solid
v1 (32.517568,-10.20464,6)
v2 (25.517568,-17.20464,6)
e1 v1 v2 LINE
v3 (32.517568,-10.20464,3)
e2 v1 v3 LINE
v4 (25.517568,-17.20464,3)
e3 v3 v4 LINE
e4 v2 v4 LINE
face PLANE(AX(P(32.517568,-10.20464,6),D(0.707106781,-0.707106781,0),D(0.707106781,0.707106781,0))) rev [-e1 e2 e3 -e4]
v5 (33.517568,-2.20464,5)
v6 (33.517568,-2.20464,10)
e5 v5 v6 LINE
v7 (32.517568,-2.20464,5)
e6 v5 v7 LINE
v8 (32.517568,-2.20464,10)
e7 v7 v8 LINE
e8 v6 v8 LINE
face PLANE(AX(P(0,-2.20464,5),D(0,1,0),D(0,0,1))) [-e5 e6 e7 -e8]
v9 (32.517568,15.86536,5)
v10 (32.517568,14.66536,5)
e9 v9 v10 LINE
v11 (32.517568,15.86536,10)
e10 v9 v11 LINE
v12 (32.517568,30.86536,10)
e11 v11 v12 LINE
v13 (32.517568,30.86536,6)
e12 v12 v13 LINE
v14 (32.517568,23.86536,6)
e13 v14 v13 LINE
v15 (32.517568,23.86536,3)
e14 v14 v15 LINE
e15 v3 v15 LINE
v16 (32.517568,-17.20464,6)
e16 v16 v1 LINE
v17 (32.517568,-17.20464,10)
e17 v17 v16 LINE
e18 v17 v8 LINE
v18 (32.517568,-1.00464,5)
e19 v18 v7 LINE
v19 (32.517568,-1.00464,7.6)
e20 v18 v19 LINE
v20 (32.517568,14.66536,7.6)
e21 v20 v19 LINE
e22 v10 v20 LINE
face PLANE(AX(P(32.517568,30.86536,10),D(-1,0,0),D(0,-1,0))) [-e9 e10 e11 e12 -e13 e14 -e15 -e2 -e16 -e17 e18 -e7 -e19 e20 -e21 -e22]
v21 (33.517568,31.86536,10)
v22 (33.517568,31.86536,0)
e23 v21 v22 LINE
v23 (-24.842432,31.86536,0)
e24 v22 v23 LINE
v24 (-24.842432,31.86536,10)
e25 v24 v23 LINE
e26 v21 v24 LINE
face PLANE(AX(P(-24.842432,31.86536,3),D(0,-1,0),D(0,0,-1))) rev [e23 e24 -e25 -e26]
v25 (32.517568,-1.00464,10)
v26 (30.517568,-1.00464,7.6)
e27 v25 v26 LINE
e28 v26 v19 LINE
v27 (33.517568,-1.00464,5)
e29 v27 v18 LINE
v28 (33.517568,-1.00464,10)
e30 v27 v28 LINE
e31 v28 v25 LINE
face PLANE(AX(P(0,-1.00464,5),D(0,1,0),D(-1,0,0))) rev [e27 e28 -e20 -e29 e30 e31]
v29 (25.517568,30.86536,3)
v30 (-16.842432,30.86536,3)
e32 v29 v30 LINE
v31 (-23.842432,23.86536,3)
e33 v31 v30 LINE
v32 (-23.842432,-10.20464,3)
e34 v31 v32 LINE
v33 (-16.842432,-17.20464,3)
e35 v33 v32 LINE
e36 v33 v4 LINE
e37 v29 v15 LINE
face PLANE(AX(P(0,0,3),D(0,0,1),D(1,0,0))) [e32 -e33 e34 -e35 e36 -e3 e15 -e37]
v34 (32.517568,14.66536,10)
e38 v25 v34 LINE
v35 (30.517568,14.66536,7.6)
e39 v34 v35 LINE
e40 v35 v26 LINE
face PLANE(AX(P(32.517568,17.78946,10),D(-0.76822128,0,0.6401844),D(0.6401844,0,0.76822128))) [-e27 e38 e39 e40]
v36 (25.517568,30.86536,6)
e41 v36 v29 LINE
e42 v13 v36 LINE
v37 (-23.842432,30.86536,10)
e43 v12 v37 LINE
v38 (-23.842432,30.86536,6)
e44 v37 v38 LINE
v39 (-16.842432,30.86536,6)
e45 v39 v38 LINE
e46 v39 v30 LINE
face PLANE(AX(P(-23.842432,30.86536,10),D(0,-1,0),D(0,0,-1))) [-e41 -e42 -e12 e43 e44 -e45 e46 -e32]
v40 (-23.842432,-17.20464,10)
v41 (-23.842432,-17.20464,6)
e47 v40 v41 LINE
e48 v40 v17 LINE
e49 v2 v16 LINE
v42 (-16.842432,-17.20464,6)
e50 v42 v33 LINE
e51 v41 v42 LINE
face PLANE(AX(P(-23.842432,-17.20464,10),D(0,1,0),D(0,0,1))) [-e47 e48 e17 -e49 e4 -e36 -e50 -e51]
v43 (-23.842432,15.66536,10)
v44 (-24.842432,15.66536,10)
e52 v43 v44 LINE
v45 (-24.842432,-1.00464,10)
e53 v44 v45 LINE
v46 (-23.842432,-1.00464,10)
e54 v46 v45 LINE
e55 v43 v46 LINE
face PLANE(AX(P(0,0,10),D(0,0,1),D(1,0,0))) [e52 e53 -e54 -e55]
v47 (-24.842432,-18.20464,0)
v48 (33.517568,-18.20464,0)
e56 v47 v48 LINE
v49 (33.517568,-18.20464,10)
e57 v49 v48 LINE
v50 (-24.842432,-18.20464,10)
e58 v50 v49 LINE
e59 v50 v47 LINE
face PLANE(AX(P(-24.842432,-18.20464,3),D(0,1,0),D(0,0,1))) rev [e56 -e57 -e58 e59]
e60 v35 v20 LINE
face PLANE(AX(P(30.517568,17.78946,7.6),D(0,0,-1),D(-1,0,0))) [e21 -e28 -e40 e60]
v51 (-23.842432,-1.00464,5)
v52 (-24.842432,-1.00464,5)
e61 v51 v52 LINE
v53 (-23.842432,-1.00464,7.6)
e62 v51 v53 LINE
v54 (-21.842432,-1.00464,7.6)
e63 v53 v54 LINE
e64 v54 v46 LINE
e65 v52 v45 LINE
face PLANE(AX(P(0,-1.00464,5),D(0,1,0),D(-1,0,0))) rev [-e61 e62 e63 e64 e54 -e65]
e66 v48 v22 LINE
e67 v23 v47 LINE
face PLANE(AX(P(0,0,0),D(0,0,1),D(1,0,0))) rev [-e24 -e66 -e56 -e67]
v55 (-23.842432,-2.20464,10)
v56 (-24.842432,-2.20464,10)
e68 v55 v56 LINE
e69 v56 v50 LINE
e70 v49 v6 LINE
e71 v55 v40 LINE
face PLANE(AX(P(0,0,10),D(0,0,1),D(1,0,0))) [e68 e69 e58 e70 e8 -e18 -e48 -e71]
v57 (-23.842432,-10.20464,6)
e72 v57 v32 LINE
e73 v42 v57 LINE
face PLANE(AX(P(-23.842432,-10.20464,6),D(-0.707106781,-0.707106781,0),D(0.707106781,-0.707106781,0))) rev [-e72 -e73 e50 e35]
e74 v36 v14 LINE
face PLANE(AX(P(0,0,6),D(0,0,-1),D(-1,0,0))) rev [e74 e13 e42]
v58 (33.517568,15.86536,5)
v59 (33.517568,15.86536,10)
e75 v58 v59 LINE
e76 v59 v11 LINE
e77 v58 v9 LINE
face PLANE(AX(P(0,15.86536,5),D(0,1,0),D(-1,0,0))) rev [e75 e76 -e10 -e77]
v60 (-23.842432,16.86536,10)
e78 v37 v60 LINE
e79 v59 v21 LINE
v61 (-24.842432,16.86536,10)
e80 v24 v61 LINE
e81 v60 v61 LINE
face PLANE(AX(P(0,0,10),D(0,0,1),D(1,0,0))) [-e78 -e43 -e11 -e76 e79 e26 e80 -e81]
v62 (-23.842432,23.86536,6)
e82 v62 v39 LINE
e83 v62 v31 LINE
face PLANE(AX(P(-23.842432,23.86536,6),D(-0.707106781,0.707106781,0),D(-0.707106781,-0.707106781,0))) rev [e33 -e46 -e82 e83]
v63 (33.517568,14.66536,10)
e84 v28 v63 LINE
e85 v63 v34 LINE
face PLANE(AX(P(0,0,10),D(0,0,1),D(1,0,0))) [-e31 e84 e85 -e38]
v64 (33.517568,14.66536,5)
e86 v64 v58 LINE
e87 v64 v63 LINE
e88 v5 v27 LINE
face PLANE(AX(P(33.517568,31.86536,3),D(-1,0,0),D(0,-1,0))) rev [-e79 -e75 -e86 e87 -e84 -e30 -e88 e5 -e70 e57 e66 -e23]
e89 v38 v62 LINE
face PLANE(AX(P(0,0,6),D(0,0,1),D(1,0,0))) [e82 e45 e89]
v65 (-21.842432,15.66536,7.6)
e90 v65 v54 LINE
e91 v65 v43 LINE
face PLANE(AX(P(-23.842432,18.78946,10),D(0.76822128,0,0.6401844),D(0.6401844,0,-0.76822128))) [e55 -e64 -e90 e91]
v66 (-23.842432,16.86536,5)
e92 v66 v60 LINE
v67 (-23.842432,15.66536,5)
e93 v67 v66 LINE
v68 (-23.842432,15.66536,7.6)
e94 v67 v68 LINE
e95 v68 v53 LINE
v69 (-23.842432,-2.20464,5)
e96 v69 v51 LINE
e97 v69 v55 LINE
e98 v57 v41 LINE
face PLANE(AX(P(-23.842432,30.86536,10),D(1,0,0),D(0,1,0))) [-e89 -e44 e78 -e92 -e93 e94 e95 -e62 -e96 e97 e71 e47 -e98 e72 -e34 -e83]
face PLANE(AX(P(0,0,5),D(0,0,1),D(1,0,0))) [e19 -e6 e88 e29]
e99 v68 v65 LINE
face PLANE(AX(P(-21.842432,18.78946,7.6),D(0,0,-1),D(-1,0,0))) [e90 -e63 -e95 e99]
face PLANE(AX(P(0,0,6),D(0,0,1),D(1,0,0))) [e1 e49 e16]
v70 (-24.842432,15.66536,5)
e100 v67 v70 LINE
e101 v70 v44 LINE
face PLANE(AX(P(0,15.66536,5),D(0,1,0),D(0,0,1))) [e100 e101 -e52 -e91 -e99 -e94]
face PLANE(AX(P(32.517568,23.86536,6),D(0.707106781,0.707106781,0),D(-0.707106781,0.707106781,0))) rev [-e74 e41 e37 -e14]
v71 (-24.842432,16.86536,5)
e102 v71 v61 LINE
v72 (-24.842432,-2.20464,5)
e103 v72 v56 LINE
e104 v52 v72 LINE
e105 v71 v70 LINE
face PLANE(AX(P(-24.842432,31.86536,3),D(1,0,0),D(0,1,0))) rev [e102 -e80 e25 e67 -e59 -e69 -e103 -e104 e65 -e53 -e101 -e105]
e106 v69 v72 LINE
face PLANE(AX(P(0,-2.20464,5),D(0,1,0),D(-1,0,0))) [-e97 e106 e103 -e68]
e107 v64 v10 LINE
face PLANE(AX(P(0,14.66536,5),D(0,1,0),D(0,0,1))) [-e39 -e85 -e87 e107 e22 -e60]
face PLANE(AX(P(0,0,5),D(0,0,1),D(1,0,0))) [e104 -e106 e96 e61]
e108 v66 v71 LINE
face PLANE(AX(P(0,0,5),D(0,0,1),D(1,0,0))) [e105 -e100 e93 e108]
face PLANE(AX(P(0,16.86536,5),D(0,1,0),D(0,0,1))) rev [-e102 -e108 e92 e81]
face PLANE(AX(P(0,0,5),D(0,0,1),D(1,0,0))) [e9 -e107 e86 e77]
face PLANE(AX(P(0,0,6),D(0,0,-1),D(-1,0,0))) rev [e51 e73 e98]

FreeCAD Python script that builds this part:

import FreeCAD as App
import Part
import Sketcher
from FreeCAD import Vector

doc = App.newDocument("Part")
params = doc.addObject("Spreadsheet::Sheet", "Params")
for row, (alias, value) in enumerate([
    ("sketch1_width", "58.36 mm"),
    ("sketch1_height", "50.07 mm"),
    ("pad1_length", "3 mm"),
    ("sketch2_width", "58.36 mm"),
    ("sketch2_height", "50.07 mm"),
    ("pad2_length", "7 mm"),
    ("sketch3_width", "7 mm"),
    ("pad3_length", "3 mm"),
    ("sketch4_width", "1 mm"),
    ("sketch4_height", "1.2 mm"),
    ("pocket1_length", "5 mm"),
    ("sketch5_width", "2 mm"),
    ("sketch5_height", "2.4 mm"),
    ("pad4_length", "15.67 mm"),
    ("sketch6_width", "2 mm"),
    ("sketch6_height", "2.4 mm"),
    ("pad5_length", "16.67 mm"),
], start=1):
    params.set(f"A{row}", alias)
    params.set(f"B{row}", "=" + value)
    params.setAlias(f"B{row}", alias)

body = doc.addObject("PartDesign::Body", "Body")

# Sketch on XY plane
sketch1 = doc.addObject("Sketcher::SketchObject", "Sketch")
body.addObject(sketch1)
sketch1.AttachmentSupport = (doc.XY_Plane, [""])
sketch1.MapMode = "FlatFace"
sketch1.addGeometry([
    Part.LineSegment(Vector(-25, 32, 0), Vector(-25, -18, 0)),
    Part.LineSegment(Vector(-25, -18, 0), Vector(34, -18, 0)),
    Part.LineSegment(Vector(34, -18, 0), Vector(34, 32, 0)),
    Part.LineSegment(Vector(34, 32, 0), Vector(-25, 32, 0)),
], False)
sketch1.addConstraint([
    Sketcher.Constraint("Coincident", 0, 2, 1, 1),
    Sketcher.Constraint("Coincident", 1, 2, 2, 1),
    Sketcher.Constraint("Coincident", 2, 2, 3, 1),
    Sketcher.Constraint("Coincident", 3, 2, 0, 1),
    Sketcher.Constraint("Vertical", 0),
    Sketcher.Constraint("Horizontal", 1),
    Sketcher.Constraint("Vertical", 2),
    Sketcher.Constraint("Horizontal", 3),
    Sketcher.Constraint("DistanceX", 1, 1, 1, 2, 58.36),
    Sketcher.Constraint("DistanceY", 0, 2, 0, 1, 50.07),
    Sketcher.Constraint("DistanceY", 0, 2, -1, 1, 18.20464),
    Sketcher.Constraint("DistanceX", 0, 2, -1, 1, 24.842432),
])
sketch1.setExpression("Constraints[8]", "Params.sketch1_width")
sketch1.setExpression("Constraints[9]", "Params.sketch1_height")
pad1 = doc.addObject("PartDesign::Pad", "Pad")
body.addObject(pad1)
pad1.Profile = sketch1
pad1.setExpression("Length", "Params.pad1_length")

# Sketch on XY plane
sketch2 = doc.addObject("Sketcher::SketchObject", "Sketch001")
body.addObject(sketch2)
sketch2.AttachmentSupport = (doc.XY_Plane, [""])
sketch2.MapMode = "FlatFace"
sketch2.AttachmentOffset = App.Placement(Vector(0, 0, 3), App.Rotation())
sketch2.addGeometry([
    Part.LineSegment(Vector(-25, 32, 0), Vector(-25, -18, 0)),  # 0
    Part.LineSegment(Vector(-25, -18, 0), Vector(34, -18, 0)),  # 1
    Part.LineSegment(Vector(34, -18, 0), Vector(34, 32, 0)),  # 2
    Part.LineSegment(Vector(34, 32, 0), Vector(-25, 32, 0)),  # 3
    Part.LineSegment(Vector(33, -17, 0), Vector(-24, -17, 0)),  # 4
    Part.LineSegment(Vector(-24, -17, 0), Vector(-24, 31, 0)),  # 5
    Part.LineSegment(Vector(-24, 31, 0), Vector(33, 31, 0)),  # 6
    Part.LineSegment(Vector(33, 31, 0), Vector(33, -17, 0)),  # 7
], False)
sketch2.addConstraint([
    Sketcher.Constraint("Coincident", 0, 2, 1, 1),
    Sketcher.Constraint("Coincident", 1, 2, 2, 1),
    Sketcher.Constraint("Coincident", 2, 2, 3, 1),
    Sketcher.Constraint("Coincident", 3, 2, 0, 1),
    Sketcher.Constraint("Coincident", 4, 2, 5, 1),
    Sketcher.Constraint("Coincident", 5, 2, 6, 1),
    Sketcher.Constraint("Coincident", 6, 2, 7, 1),
    Sketcher.Constraint("Coincident", 7, 2, 4, 1),
    Sketcher.Constraint("Vertical", 0),
    Sketcher.Constraint("Horizontal", 1),
    Sketcher.Constraint("Vertical", 2),
    Sketcher.Constraint("Horizontal", 3),
    Sketcher.Constraint("Horizontal", 4),
    Sketcher.Constraint("Vertical", 5),
    Sketcher.Constraint("Horizontal", 6),
    Sketcher.Constraint("Vertical", 7),
    Sketcher.Constraint("DistanceX", 0, 2, 4, 2, 1.0),
    Sketcher.Constraint("DistanceY", 0, 2, 4, 2, 1.0),
    Sketcher.Constraint("DistanceY", 5, 2, 3, 2, 1.0),
    Sketcher.Constraint("DistanceX", 6, 2, 2, 2, 1.0),
    Sketcher.Constraint("DistanceX", 1, 1, 1, 2, 58.36),
    Sketcher.Constraint("DistanceY", 0, 2, 0, 1, 50.07),
    Sketcher.Constraint("DistanceY", 0, 2, -1, 1, 18.20464),
    Sketcher.Constraint("DistanceX", 0, 2, -1, 1, 24.842432),
])
sketch2.setExpression("Constraints[20]", "Params.sketch2_width")
sketch2.setExpression("Constraints[21]", "Params.sketch2_height")
pad2 = doc.addObject("PartDesign::Pad", "Pad001")
body.addObject(pad2)
pad2.Profile = sketch2
pad2.setExpression("Length", "Params.pad2_length")

# Sketch on XY plane
sketch3 = doc.addObject("Sketcher::SketchObject", "Sketch002")
body.addObject(sketch3)
sketch3.AttachmentSupport = (doc.XY_Plane, [""])
sketch3.MapMode = "FlatFace"
sketch3.AttachmentOffset = App.Placement(Vector(0, 0, 3), App.Rotation())
sketch3.addGeometry([
    Part.LineSegment(Vector(-24, 31, 0), Vector(-24, 24, 0)),  # 0
    Part.LineSegment(Vector(-24, 24, 0), Vector(-17, 31, 0)),  # 1
    Part.LineSegment(Vector(-17, 31, 0), Vector(-24, 31, 0)),  # 2
    Part.LineSegment(Vector(33, -17, 0), Vector(33, -10, 0)),  # 3
    Part.LineSegment(Vector(33, -10, 0), Vector(26, -17, 0)),  # 4
    Part.LineSegment(Vector(26, -17, 0), Vector(33, -17, 0)),  # 5
    Part.LineSegment(Vector(33, 24, 0), Vector(33, 31, 0)),  # 6
    Part.LineSegment(Vector(33, 31, 0), Vector(26, 31, 0)),  # 7
    Part.LineSegment(Vector(26, 31, 0), Vector(33, 24, 0)),  # 8
    Part.LineSegment(Vector(-24, -10, 0), Vector(-24, -17, 0)),  # 9
    Part.LineSegment(Vector(-24, -17, 0), Vector(-17, -17, 0)),  # 10
    Part.LineSegment(Vector(-17, -17, 0), Vector(-24, -10, 0)),  # 11
], False)
sketch3.addConstraint([
    Sketcher.Constraint("Coincident", 0, 2, 1, 1),
    Sketcher.Constraint("Coincident", 1, 2, 2, 1),
    Sketcher.Constraint("Coincident", 2, 2, 0, 1),
    Sketcher.Constraint("Coincident", 3, 2, 4, 1),
    Sketcher.Constraint("Coincident", 4, 2, 5, 1),
    Sketcher.Constraint("Coincident", 5, 2, 3, 1),
    Sketcher.Constraint("Coincident", 6, 2, 7, 1),
    Sketcher.Constraint("Coincident", 7, 2, 8, 1),
    Sketcher.Constraint("Coincident", 8, 2, 6, 1),
    Sketcher.Constraint("Coincident", 9, 2, 10, 1),
    Sketcher.Constraint("Coincident", 10, 2, 11, 1),
    Sketcher.Constraint("Coincident", 11, 2, 9, 1),
    Sketcher.Constraint("Vertical", 0),
    Sketcher.Constraint("Horizontal", 2),
    Sketcher.Constraint("Vertical", 3),
    Sketcher.Constraint("Horizontal", 5),
    Sketcher.Constraint("Vertical", 6),
    Sketcher.Constraint("Horizontal", 7),
    Sketcher.Constraint("Vertical", 9),
    Sketcher.Constraint("Horizontal", 10),
    Sketcher.Constraint("Parallel", 1, 4),
    Sketcher.Constraint("Perpendicular", 4, 8),
    Sketcher.Constraint("Parallel", 8, 11),
    Sketcher.Constraint("Horizontal", 2, 2, 6, 2),
    Sketcher.Constraint("Horizontal", 0, 2, 8, 2),
    Sketcher.Constraint("Horizontal", 5, 2, 9, 2),
    Sketcher.Constraint("Horizontal", 3, 2, 11, 2),
    Sketcher.Constraint("Vertical", 5, 2, 6, 2),
    Sketcher.Constraint("Vertical", 4, 2, 7, 2),
    Sketcher.Constraint("Vertical", 2, 2, 9, 2),
    Sketcher.Constraint("Vertical", 1, 2, 10, 2),
    Sketcher.Constraint("DistanceX", 2, 2, 2, 1, 7.0),
    Sketcher.Constraint("DistanceX", 1, 2, 3, 2, 49.36),
    Sketcher.Constraint("DistanceY", 3, 2, 1, 2, 41.07),
    Sketcher.Constraint("DistanceY", -1, 1, 0, 2, 23.86536),
    Sketcher.Constraint("DistanceX", 0, 2, -1, 1, 23.842432),
])
sketch3.setExpression("Constraints[31]", "Params.sketch3_width")
pad3 = doc.addObject("PartDesign::Pad", "Pad002")
body.addObject(pad3)
pad3.Profile = sketch3
pad3.setExpression("Length", "Params.pad3_length")

# Sketch on XY plane
sketch4 = doc.addObject("Sketcher::SketchObject", "Sketch003")
body.addObject(sketch4)
sketch4.AttachmentSupport = (doc.XY_Plane, [""])
sketch4.MapMode = "FlatFace"
sketch4.AttachmentOffset = App.Placement(Vector(0, 0, 10), App.Rotation())
sketch4.addGeometry([
    Part.LineSegment(Vector(-24.8, -1, 0), Vector(-24.8, -2.2, 0)),  # 0
    Part.LineSegment(Vector(-24.8, -2.2, 0), Vector(-23.8, -2.2, 0)),  # 1
    Part.LineSegment(Vector(-23.8, -2.2, 0), Vector(-23.8, -1, 0)),  # 2
    Part.LineSegment(Vector(-23.8, -1, 0), Vector(-24.8, -1, 0)),  # 3
    Part.LineSegment(Vector(-24.8, 16.9, 0), Vector(-24.8, 15.7, 0)),  # 4
    Part.LineSegment(Vector(-24.8, 15.7, 0), Vector(-23.8, 15.7, 0)),  # 5
    Part.LineSegment(Vector(-23.8, 15.7, 0), Vector(-23.8, 16.9, 0)),  # 6
    Part.LineSegment(Vector(-23.8, 16.9, 0), Vector(-24.8, 16.9, 0)),  # 7
    Part.LineSegment(Vector(32.5, -1, 0), Vector(32.5, -2.2, 0)),  # 8
    Part.LineSegment(Vector(32.5, -2.2, 0), Vector(33.5, -2.2, 0)),  # 9
    Part.LineSegment(Vector(33.5, -2.2, 0), Vector(33.5, -1, 0)),  # 10
    Part.LineSegment(Vector(33.5, -1, 0), Vector(32.5, -1, 0)),  # 11
    Part.LineSegment(Vector(32.5, 15.9, 0), Vector(32.5, 14.7, 0)),  # 12
    Part.LineSegment(Vector(32.5, 14.7, 0), Vector(33.5, 14.7, 0)),  # 13
    Part.LineSegment(Vector(33.5, 14.7, 0), Vector(33.5, 15.9, 0)),  # 14
    Part.LineSegment(Vector(33.5, 15.9, 0), Vector(32.5, 15.9, 0)),  # 15
], False)
sketch4.addConstraint([
    Sketcher.Constraint("Coincident", 0, 2, 1, 1),
    Sketcher.Constraint("Coincident", 1, 2, 2, 1),
    Sketcher.Constraint("Coincident", 2, 2, 3, 1),
    Sketcher.Constraint("Coincident", 3, 2, 0, 1),
    Sketcher.Constraint("Coincident", 4, 2, 5, 1),
    Sketcher.Constraint("Coincident", 5, 2, 6, 1),
    Sketcher.Constraint("Coincident", 6, 2, 7, 1),
    Sketcher.Constraint("Coincident", 7, 2, 4, 1),
    Sketcher.Constraint("Coincident", 8, 2, 9, 1),
    Sketcher.Constraint("Coincident", 9, 2, 10, 1),
    Sketcher.Constraint("Coincident", 10, 2, 11, 1),
    Sketcher.Constraint("Coincident", 11, 2, 8, 1),
    Sketcher.Constraint("Coincident", 12, 2, 13, 1),
    Sketcher.Constraint("Coincident", 13, 2, 14, 1),
    Sketcher.Constraint("Coincident", 14, 2, 15, 1),
    Sketcher.Constraint("Coincident", 15, 2, 12, 1),
    Sketcher.Constraint("Vertical", 0),
    Sketcher.Constraint("Horizontal", 1),
    Sketcher.Constraint("Vertical", 2),
    Sketcher.Constraint("Horizontal", 3),
    Sketcher.Constraint("Vertical", 4),
    Sketcher.Constraint("Horizontal", 5),
    Sketcher.Constraint("Vertical", 6),
    Sketcher.Constraint("Horizontal", 7),
    Sketcher.Constraint("Vertical", 8),
    Sketcher.Constraint("Horizontal", 9),
    Sketcher.Constraint("Vertical", 10),
    Sketcher.Constraint("Horizontal", 11),
    Sketcher.Constraint("Vertical", 12),
    Sketcher.Constraint("Horizontal", 13),
    Sketcher.Constraint("Vertical", 14),
    Sketcher.Constraint("Horizontal", 15),
    Sketcher.Constraint("Horizontal", 1, 2, 8, 2),
    Sketcher.Constraint("Horizontal", 3, 2, 10, 2),
    Sketcher.Constraint("Vertical", 3, 2, 4, 2),
    Sketcher.Constraint("Vertical", 2, 2, 5, 2),
    Sketcher.Constraint("Vertical", 11, 2, 12, 2),
    Sketcher.Constraint("Vertical", 10, 2, 13, 2),
    Sketcher.Constraint("Equal", 7, 9),
    Sketcher.Constraint("Equal", 2, 4),
    Sketcher.Constraint("Equal", 10, 12),
    Sketcher.Constraint("DistanceX", 1, 1, 1, 2, 1.0),
    Sketcher.Constraint("DistanceY", 0, 2, 0, 1, 1.2),
    Sketcher.Constraint("DistanceY", 12, 2, 5, 2, 1.0),
    Sketcher.Constraint("DistanceY", 3, 2, 4, 2, 16.67),
    Sketcher.Constraint("DistanceX", 1, 2, 8, 2, 56.36),
    Sketcher.Constraint("DistanceY", 0, 2, -1, 1, 2.20464),
    Sketcher.Constraint("DistanceX", 0, 2, -1, 1, 24.842432),
])
sketch4.setExpression("Constraints[41]", "Params.sketch4_width")
sketch4.setExpression("Constraints[42]", "Params.sketch4_height")
pocket1 = doc.addObject("PartDesign::Pocket", "Pocket")
body.addObject(pocket1)
pocket1.Profile = sketch4
pocket1.setExpression("Length", "Params.pocket1_length")

# Sketch on XZ plane
sketch5 = doc.addObject("Sketcher::SketchObject", "Sketch004")
body.addObject(sketch5)
sketch5.AttachmentSupport = (doc.XZ_Plane, [""])
sketch5.MapMode = "FlatFace"
sketch5.AttachmentOffset = App.Placement(Vector(0, 0, 1.00464), App.Rotation())
sketch5.addGeometry([
    Part.LineSegment(Vector(32.5, 10, 0), Vector(30.5, 7.6, 0)),
    Part.LineSegment(Vector(30.5, 7.6, 0), Vector(32.5, 7.6, 0)),
    Part.LineSegment(Vector(32.5, 7.6, 0), Vector(32.5, 10, 0)),
], False)
sketch5.addConstraint([
    Sketcher.Constraint("Coincident", 0, 2, 1, 1),
    Sketcher.Constraint("Coincident", 1, 2, 2, 1),
    Sketcher.Constraint("Coincident", 2, 2, 0, 1),
    Sketcher.Constraint("Horizontal", 1),
    Sketcher.Constraint("Vertical", 2),
    Sketcher.Constraint("DistanceX", 1, 1, 1, 2, 2.0),
    Sketcher.Constraint("DistanceY", 2, 1, 2, 2, 2.4),
    Sketcher.Constraint("DistanceY", -1, 1, 2, 2, 10.0),
    Sketcher.Constraint("DistanceX", -1, 1, 0, 2, 30.517568),
])
sketch5.setExpression("Constraints[5]", "Params.sketch5_width")
sketch5.setExpression("Constraints[6]", "Params.sketch5_height")
pad4 = doc.addObject("PartDesign::Pad", "Pad003")
body.addObject(pad4)
pad4.Profile = sketch5
pad4.setExpression("Length", "Params.pad4_length")
pad4.Reversed = True

# Sketch on XZ plane
sketch6 = doc.addObject("Sketcher::SketchObject", "Sketch005")
body.addObject(sketch6)
sketch6.AttachmentSupport = (doc.XZ_Plane, [""])
sketch6.MapMode = "FlatFace"
sketch6.AttachmentOffset = App.Placement(Vector(0, 0, 1.00464), App.Rotation())
sketch6.addGeometry([
    Part.LineSegment(Vector(-21.8, 7.6, 0), Vector(-23.8, 10, 0)),
    Part.LineSegment(Vector(-23.8, 10, 0), Vector(-23.8, 7.6, 0)),
    Part.LineSegment(Vector(-23.8, 7.6, 0), Vector(-21.8, 7.6, 0)),
], False)
sketch6.addConstraint([
    Sketcher.Constraint("Coincident", 0, 2, 1, 1),
    Sketcher.Constraint("Coincident", 1, 2, 2, 1),
    Sketcher.Constraint("Coincident", 2, 2, 0, 1),
    Sketcher.Constraint("Vertical", 1),
    Sketcher.Constraint("Horizontal", 2),
    Sketcher.Constraint("DistanceX", 2, 1, 2, 2, 2.0),
    Sketcher.Constraint("DistanceY", 1, 2, 1, 1, 2.4),
    Sketcher.Constraint("DistanceY", -1, 1, 0, 2, 10.0),
    Sketcher.Constraint("DistanceX", 0, 2, -1, 1, 23.842432),
])
sketch6.setExpression("Constraints[5]", "Params.sketch6_width")
sketch6.setExpression("Constraints[6]", "Params.sketch6_height")
pad5 = doc.addObject("PartDesign::Pad", "Pad004")
body.addObject(pad5)
pad5.Profile = sketch6
pad5.setExpression("Length", "Params.pad5_length")
pad5.Reversed = True

doc.recompute()
